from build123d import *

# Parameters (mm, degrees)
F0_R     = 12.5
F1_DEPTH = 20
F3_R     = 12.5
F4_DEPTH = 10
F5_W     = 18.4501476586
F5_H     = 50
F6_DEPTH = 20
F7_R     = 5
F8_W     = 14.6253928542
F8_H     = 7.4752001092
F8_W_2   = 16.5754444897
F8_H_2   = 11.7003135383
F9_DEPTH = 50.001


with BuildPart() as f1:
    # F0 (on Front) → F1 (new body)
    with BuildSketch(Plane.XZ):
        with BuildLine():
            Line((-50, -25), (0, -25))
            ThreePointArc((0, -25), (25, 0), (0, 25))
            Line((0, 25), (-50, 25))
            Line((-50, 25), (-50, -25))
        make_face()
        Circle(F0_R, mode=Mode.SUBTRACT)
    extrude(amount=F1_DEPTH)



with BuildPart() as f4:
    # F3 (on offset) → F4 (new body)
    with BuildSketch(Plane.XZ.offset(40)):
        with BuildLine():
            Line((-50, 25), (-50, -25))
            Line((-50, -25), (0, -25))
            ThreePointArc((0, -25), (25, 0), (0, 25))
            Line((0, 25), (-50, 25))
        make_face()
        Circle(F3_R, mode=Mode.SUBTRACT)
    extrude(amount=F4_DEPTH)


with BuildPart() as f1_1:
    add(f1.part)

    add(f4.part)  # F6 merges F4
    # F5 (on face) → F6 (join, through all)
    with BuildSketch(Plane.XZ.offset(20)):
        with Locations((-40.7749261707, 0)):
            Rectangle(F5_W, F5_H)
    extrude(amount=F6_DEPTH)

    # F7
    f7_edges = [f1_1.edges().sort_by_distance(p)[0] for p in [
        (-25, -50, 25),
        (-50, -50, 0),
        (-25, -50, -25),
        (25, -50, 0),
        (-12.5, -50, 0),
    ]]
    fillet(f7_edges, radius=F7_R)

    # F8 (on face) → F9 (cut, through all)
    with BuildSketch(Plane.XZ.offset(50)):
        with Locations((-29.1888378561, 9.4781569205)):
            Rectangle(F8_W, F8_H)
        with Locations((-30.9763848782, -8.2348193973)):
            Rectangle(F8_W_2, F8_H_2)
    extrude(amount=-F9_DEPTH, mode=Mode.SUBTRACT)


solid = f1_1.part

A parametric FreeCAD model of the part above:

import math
import FreeCAD as App
import Part
import Sketcher
Q = App.Units.Quantity


def edges_at(feature, points):
    """Names of the edges that pass closest to the given points."""
    edges = feature.Shape.Edges
    near = lambda p: min(range(len(edges)), key=lambda i: edges[i].distToShape(Part.Vertex(*p))[0])
    return sorted({f"Edge{near(p) + 1}" for p in points})

doc = App.newDocument("Part")
body = doc.addObject("PartDesign::Body", "Body")

# Sketch on XZ plane
sketch1 = body.newObject("Sketcher::SketchObject", "Sketch")
sketch1.AttachmentSupport = (doc.getObject("XZ_Plane"), [""])
sketch1.MapMode = "FlatFace"
sketch1.addGeometry(Part.LineSegment(App.Vector(-50, -25, 0), App.Vector(0, -25, 0)), False)
sketch1.addGeometry(Part.ArcOfCircle(Part.Circle(App.Vector(0, 0, 0), App.Vector(0, 0, 1), 25), math.radians(-90), math.radians(90)), False)
sketch1.addGeometry(Part.LineSegment(App.Vector(0, 25, 0), App.Vector(-50, 25, 0)), False)
sketch1.addGeometry(Part.LineSegment(App.Vector(-50, 25, 0), App.Vector(-50, -25, 0)), False)
sketch1.addGeometry(Part.Circle(App.Vector(0, 0, 0), App.Vector(0, 0, 1), 12), False)
sketch1.addConstraint(Sketcher.Constraint("Tangent", 0, 2, 1, 1))
sketch1.addConstraint(Sketcher.Constraint("Tangent", 1, 2, 2, 1))
sketch1.addConstraint(Sketcher.Constraint("Coincident", 2, 2, 3, 1))
sketch1.addConstraint(Sketcher.Constraint("Coincident", 3, 2, 0, 1))
sketch1.addConstraint(Sketcher.Constraint("Horizontal", 0))
sketch1.addConstraint(Sketcher.Constraint("Horizontal", 2))
sketch1.addConstraint(Sketcher.Constraint("Vertical", 3))
sketch1.addConstraint(Sketcher.Constraint("Coincident", 1, 3, -1, 1))
sketch1.addConstraint(Sketcher.Constraint("Coincident", 4, 3, -1, 1))
sketch1.addConstraint(Sketcher.Constraint("Equal", 2, 3))
sketch1.addConstraint(Sketcher.Constraint("Diameter", 4, Q("25 mm")))
sketch1.addConstraint(Sketcher.Constraint("Radius", 1, Q("25 mm")))
pad1 = body.newObject("PartDesign::Pad", "Pad")
pad1.Profile = sketch1
pad1.Length = 20
body2 = doc.addObject("PartDesign::Body", "Body001")

# Sketch on XZ plane
sketch2 = body2.newObject("Sketcher::SketchObject", "Sketch001")
sketch2.AttachmentSupport = (doc.getObject("XZ_Plane001"), [""])
sketch2.MapMode = "FlatFace"
sketch2.AttachmentOffset = App.Placement(App.Vector(0, 0, 40), App.Rotation())
sketch2.addGeometry(Part.LineSegment(App.Vector(-50, 25, 0), App.Vector(-50, -25, 0)), False)
sketch2.addGeometry(Part.LineSegment(App.Vector(-50, -25, 0), App.Vector(0, -25, 0)), False)
sketch2.addGeometry(Part.ArcOfCircle(Part.Circle(App.Vector(0, 0, 0), App.Vector(0, 0, 1), 25), math.radians(-90), math.radians(90)), False)
sketch2.addGeometry(Part.LineSegment(App.Vector(0, 25, 0), App.Vector(-50, 25, 0)), False)
sketch2.addGeometry(Part.Circle(App.Vector(0, 0, 0), App.Vector(0, 0, 1), 12), False)
sketch2.addConstraint(Sketcher.Constraint("Coincident", 0, 2, 1, 1))
sketch2.addConstraint(Sketcher.Constraint("Tangent", 1, 2, 2, 1))
sketch2.addConstraint(Sketcher.Constraint("Tangent", 2, 2, 3, 1))
sketch2.addConstraint(Sketcher.Constraint("Coincident", 3, 2, 0, 1))
sketch2.addConstraint(Sketcher.Constraint("Vertical", 0))
sketch2.addConstraint(Sketcher.Constraint("Horizontal", 1))
sketch2.addConstraint(Sketcher.Constraint("Horizontal", 3))
sketch2.addConstraint(Sketcher.Constraint("Coincident", 2, 3, -1, 1))
sketch2.addConstraint(Sketcher.Constraint("Coincident", 4, 3, -1, 1))
sketch2.addConstraint(Sketcher.Constraint("Equal", 3, 0))
sketch2.addConstraint(Sketcher.Constraint("Diameter", 4, Q("25 mm")))
sketch2.addConstraint(Sketcher.Constraint("Radius", 2, Q("25 mm")))
pad2 = body2.newObject("PartDesign::Pad", "Pad001")
pad2.Profile = sketch2
pad2.Length = 10
body.AllowCompound = True
doc.recompute()

boolean = body.newObject("PartDesign::Boolean", "Boolean")
boolean.Type = "Fuse"
boolean.addObjects([body2])

# Sketch on XZ plane
sketch3 = body.newObject("Sketcher::SketchObject", "Sketch002")
sketch3.AttachmentSupport = (doc.getObject("XZ_Plane"), [""])
sketch3.MapMode = "FlatFace"
sketch3.AttachmentOffset = App.Placement(App.Vector(0, 0, 20), App.Rotation())
sketch3.addGeometry(Part.LineSegment(App.Vector(-50, 25, 0), App.Vector(-50, -25, 0)), False)
sketch3.addGeometry(Part.LineSegment(App.Vector(-50, -25, 0), App.Vector(-32, -25, 0)), False)
sketch3.addGeometry(Part.LineSegment(App.Vector(-32, -25, 0), App.Vector(-32, 25, 0)), False)
sketch3.addGeometry(Part.LineSegment(App.Vector(-32, 25, 0), App.Vector(-50, 25, 0)), False)
sketch3.addConstraint(Sketcher.Constraint("Coincident", 0, 2, 1, 1))
sketch3.addConstraint(Sketcher.Constraint("Coincident", 1, 2, 2, 1))
sketch3.addConstraint(Sketcher.Constraint("Coincident", 2, 2, 3, 1))
sketch3.addConstraint(Sketcher.Constraint("Coincident", 3, 2, 0, 1))
sketch3.addConstraint(Sketcher.Constraint("Vertical", 0))
sketch3.addConstraint(Sketcher.Constraint("Horizontal", 1))
sketch3.addConstraint(Sketcher.Constraint("Vertical", 2))
sketch3.addConstraint(Sketcher.Constraint("Horizontal", 3))
sketch3.addConstraint(Sketcher.Constraint("DistanceY", 0, 2, 0, 1, Q("50 mm")))
sketch3.addConstraint(Sketcher.Constraint("DistanceX", 0, 2, -1, 1, Q("50 mm")))
sketch3.addConstraint(Sketcher.Constraint("DistanceY", 0, 2, -1, 1, Q("25 mm")))
sketch3.addConstraint(Sketcher.Constraint("DistanceX", 1, 1, 1, 2, Q("18.450148 mm")))
pad3 = body.newObject("PartDesign::Pad", "Pad002")
pad3.Profile = sketch3
pad3.Type = "UpToLast"
doc.recompute()

fillet = body.newObject("PartDesign::Fillet", "Fillet")
fillet.Base = (pad3, edges_at(pad3, [
    (-25, -50, 25),
    (-50, -50, 0),
    (-25, -50, -25),
    (25, -50, 0),
    (-12.5, -50, 0),
]))
fillet.Radius = 5

# Sketch on XZ plane
sketch4 = body.newObject("Sketcher::SketchObject", "Sketch003")
sketch4.AttachmentSupport = (doc.getObject("XZ_Plane"), [""])
sketch4.MapMode = "FlatFace"
sketch4.AttachmentOffset = App.Placement(App.Vector(0, 0, 50), App.Rotation())
sketch4.addGeometry(Part.LineSegment(App.Vector(-37, 13, 0), App.Vector(-37, 6, 0)), False)
sketch4.addGeometry(Part.LineSegment(App.Vector(-37, 6, 0), App.Vector(-22, 6, 0)), False)
sketch4.addGeometry(Part.LineSegment(App.Vector(-22, 6, 0), App.Vector(-22, 13, 0)), False)
sketch4.addGeometry(Part.LineSegment(App.Vector(-22, 13, 0), App.Vector(-37, 13, 0)), False)
sketch4.addGeometry(Part.LineSegment(App.Vector(-39, -2, 0), App.Vector(-39, -14, 0)), False)
sketch4.addGeometry(Part.LineSegment(App.Vector(-39, -14, 0), App.Vector(-23, -14, 0)), False)
sketch4.addGeometry(Part.LineSegment(App.Vector(-23, -14, 0), App.Vector(-23, -2, 0)), False)
sketch4.addGeometry(Part.LineSegment(App.Vector(-23, -2, 0), App.Vector(-39, -2, 0)), False)
sketch4.addConstraint(Sketcher.Constraint("Coincident", 0, 2, 1, 1))
sketch4.addConstraint(Sketcher.Constraint("Coincident", 1, 2, 2, 1))
sketch4.addConstraint(Sketcher.Constraint("Coincident", 2, 2, 3, 1))
sketch4.addConstraint(Sketcher.Constraint("Coincident", 3, 2, 0, 1))
sketch4.addConstraint(Sketcher.Constraint("Coincident", 4, 2, 5, 1))
sketch4.addConstraint(Sketcher.Constraint("Coincident", 5, 2, 6, 1))
sketch4.addConstraint(Sketcher.Constraint("Coincident", 6, 2, 7, 1))
sketch4.addConstraint(Sketcher.Constraint("Coincident", 7, 2, 4, 1))
sketch4.addConstraint(Sketcher.Constraint("Vertical", 0))
sketch4.addConstraint(Sketcher.Constraint("Horizontal", 1))
sketch4.addConstraint(Sketcher.Constraint("Vertical", 2))
sketch4.addConstraint(Sketcher.Constraint("Horizontal", 3))
sketch4.addConstraint(Sketcher.Constraint("Vertical", 4))
sketch4.addConstraint(Sketcher.Constraint("Horizontal", 5))
sketch4.addConstraint(Sketcher.Constraint("Vertical", 6))
sketch4.addConstraint(Sketcher.Constraint("Horizontal", 7))
sketch4.addConstraint(Sketcher.Constraint("DistanceY", 0, 2, 0, 1, Q("7.4752 mm")))
sketch4.addConstraint(Sketcher.Constraint("DistanceX", 1, 1, 1, 2, Q("14.625393 mm")))
sketch4.addConstraint(Sketcher.Constraint("DistanceX", 5, 1, 5, 2, Q("16.575444 mm")))
sketch4.addConstraint(Sketcher.Constraint("DistanceY", 4, 2, 4, 1, Q("11.700314 mm")))
sketch4.addConstraint(Sketcher.Constraint("DistanceX", 1, 2, -1, 1, Q("21.876141 mm")))
sketch4.addConstraint(Sketcher.Constraint("DistanceX", 5, 2, 1, 2, Q("0.812521 mm")))
sketch4.addConstraint(Sketcher.Constraint("DistanceY", 6, 2, 1, 2, Q("8.125219 mm")))
sketch4.addConstraint(Sketcher.Constraint("DistanceY", -1, 1, 0, 2, Q("5.740557 mm")))
pocket1 = body.newObject("PartDesign::Pocket", "Pocket")
pocket1.Profile = sketch4
pocket1.Type = "ThroughAll"

doc.recompute()
